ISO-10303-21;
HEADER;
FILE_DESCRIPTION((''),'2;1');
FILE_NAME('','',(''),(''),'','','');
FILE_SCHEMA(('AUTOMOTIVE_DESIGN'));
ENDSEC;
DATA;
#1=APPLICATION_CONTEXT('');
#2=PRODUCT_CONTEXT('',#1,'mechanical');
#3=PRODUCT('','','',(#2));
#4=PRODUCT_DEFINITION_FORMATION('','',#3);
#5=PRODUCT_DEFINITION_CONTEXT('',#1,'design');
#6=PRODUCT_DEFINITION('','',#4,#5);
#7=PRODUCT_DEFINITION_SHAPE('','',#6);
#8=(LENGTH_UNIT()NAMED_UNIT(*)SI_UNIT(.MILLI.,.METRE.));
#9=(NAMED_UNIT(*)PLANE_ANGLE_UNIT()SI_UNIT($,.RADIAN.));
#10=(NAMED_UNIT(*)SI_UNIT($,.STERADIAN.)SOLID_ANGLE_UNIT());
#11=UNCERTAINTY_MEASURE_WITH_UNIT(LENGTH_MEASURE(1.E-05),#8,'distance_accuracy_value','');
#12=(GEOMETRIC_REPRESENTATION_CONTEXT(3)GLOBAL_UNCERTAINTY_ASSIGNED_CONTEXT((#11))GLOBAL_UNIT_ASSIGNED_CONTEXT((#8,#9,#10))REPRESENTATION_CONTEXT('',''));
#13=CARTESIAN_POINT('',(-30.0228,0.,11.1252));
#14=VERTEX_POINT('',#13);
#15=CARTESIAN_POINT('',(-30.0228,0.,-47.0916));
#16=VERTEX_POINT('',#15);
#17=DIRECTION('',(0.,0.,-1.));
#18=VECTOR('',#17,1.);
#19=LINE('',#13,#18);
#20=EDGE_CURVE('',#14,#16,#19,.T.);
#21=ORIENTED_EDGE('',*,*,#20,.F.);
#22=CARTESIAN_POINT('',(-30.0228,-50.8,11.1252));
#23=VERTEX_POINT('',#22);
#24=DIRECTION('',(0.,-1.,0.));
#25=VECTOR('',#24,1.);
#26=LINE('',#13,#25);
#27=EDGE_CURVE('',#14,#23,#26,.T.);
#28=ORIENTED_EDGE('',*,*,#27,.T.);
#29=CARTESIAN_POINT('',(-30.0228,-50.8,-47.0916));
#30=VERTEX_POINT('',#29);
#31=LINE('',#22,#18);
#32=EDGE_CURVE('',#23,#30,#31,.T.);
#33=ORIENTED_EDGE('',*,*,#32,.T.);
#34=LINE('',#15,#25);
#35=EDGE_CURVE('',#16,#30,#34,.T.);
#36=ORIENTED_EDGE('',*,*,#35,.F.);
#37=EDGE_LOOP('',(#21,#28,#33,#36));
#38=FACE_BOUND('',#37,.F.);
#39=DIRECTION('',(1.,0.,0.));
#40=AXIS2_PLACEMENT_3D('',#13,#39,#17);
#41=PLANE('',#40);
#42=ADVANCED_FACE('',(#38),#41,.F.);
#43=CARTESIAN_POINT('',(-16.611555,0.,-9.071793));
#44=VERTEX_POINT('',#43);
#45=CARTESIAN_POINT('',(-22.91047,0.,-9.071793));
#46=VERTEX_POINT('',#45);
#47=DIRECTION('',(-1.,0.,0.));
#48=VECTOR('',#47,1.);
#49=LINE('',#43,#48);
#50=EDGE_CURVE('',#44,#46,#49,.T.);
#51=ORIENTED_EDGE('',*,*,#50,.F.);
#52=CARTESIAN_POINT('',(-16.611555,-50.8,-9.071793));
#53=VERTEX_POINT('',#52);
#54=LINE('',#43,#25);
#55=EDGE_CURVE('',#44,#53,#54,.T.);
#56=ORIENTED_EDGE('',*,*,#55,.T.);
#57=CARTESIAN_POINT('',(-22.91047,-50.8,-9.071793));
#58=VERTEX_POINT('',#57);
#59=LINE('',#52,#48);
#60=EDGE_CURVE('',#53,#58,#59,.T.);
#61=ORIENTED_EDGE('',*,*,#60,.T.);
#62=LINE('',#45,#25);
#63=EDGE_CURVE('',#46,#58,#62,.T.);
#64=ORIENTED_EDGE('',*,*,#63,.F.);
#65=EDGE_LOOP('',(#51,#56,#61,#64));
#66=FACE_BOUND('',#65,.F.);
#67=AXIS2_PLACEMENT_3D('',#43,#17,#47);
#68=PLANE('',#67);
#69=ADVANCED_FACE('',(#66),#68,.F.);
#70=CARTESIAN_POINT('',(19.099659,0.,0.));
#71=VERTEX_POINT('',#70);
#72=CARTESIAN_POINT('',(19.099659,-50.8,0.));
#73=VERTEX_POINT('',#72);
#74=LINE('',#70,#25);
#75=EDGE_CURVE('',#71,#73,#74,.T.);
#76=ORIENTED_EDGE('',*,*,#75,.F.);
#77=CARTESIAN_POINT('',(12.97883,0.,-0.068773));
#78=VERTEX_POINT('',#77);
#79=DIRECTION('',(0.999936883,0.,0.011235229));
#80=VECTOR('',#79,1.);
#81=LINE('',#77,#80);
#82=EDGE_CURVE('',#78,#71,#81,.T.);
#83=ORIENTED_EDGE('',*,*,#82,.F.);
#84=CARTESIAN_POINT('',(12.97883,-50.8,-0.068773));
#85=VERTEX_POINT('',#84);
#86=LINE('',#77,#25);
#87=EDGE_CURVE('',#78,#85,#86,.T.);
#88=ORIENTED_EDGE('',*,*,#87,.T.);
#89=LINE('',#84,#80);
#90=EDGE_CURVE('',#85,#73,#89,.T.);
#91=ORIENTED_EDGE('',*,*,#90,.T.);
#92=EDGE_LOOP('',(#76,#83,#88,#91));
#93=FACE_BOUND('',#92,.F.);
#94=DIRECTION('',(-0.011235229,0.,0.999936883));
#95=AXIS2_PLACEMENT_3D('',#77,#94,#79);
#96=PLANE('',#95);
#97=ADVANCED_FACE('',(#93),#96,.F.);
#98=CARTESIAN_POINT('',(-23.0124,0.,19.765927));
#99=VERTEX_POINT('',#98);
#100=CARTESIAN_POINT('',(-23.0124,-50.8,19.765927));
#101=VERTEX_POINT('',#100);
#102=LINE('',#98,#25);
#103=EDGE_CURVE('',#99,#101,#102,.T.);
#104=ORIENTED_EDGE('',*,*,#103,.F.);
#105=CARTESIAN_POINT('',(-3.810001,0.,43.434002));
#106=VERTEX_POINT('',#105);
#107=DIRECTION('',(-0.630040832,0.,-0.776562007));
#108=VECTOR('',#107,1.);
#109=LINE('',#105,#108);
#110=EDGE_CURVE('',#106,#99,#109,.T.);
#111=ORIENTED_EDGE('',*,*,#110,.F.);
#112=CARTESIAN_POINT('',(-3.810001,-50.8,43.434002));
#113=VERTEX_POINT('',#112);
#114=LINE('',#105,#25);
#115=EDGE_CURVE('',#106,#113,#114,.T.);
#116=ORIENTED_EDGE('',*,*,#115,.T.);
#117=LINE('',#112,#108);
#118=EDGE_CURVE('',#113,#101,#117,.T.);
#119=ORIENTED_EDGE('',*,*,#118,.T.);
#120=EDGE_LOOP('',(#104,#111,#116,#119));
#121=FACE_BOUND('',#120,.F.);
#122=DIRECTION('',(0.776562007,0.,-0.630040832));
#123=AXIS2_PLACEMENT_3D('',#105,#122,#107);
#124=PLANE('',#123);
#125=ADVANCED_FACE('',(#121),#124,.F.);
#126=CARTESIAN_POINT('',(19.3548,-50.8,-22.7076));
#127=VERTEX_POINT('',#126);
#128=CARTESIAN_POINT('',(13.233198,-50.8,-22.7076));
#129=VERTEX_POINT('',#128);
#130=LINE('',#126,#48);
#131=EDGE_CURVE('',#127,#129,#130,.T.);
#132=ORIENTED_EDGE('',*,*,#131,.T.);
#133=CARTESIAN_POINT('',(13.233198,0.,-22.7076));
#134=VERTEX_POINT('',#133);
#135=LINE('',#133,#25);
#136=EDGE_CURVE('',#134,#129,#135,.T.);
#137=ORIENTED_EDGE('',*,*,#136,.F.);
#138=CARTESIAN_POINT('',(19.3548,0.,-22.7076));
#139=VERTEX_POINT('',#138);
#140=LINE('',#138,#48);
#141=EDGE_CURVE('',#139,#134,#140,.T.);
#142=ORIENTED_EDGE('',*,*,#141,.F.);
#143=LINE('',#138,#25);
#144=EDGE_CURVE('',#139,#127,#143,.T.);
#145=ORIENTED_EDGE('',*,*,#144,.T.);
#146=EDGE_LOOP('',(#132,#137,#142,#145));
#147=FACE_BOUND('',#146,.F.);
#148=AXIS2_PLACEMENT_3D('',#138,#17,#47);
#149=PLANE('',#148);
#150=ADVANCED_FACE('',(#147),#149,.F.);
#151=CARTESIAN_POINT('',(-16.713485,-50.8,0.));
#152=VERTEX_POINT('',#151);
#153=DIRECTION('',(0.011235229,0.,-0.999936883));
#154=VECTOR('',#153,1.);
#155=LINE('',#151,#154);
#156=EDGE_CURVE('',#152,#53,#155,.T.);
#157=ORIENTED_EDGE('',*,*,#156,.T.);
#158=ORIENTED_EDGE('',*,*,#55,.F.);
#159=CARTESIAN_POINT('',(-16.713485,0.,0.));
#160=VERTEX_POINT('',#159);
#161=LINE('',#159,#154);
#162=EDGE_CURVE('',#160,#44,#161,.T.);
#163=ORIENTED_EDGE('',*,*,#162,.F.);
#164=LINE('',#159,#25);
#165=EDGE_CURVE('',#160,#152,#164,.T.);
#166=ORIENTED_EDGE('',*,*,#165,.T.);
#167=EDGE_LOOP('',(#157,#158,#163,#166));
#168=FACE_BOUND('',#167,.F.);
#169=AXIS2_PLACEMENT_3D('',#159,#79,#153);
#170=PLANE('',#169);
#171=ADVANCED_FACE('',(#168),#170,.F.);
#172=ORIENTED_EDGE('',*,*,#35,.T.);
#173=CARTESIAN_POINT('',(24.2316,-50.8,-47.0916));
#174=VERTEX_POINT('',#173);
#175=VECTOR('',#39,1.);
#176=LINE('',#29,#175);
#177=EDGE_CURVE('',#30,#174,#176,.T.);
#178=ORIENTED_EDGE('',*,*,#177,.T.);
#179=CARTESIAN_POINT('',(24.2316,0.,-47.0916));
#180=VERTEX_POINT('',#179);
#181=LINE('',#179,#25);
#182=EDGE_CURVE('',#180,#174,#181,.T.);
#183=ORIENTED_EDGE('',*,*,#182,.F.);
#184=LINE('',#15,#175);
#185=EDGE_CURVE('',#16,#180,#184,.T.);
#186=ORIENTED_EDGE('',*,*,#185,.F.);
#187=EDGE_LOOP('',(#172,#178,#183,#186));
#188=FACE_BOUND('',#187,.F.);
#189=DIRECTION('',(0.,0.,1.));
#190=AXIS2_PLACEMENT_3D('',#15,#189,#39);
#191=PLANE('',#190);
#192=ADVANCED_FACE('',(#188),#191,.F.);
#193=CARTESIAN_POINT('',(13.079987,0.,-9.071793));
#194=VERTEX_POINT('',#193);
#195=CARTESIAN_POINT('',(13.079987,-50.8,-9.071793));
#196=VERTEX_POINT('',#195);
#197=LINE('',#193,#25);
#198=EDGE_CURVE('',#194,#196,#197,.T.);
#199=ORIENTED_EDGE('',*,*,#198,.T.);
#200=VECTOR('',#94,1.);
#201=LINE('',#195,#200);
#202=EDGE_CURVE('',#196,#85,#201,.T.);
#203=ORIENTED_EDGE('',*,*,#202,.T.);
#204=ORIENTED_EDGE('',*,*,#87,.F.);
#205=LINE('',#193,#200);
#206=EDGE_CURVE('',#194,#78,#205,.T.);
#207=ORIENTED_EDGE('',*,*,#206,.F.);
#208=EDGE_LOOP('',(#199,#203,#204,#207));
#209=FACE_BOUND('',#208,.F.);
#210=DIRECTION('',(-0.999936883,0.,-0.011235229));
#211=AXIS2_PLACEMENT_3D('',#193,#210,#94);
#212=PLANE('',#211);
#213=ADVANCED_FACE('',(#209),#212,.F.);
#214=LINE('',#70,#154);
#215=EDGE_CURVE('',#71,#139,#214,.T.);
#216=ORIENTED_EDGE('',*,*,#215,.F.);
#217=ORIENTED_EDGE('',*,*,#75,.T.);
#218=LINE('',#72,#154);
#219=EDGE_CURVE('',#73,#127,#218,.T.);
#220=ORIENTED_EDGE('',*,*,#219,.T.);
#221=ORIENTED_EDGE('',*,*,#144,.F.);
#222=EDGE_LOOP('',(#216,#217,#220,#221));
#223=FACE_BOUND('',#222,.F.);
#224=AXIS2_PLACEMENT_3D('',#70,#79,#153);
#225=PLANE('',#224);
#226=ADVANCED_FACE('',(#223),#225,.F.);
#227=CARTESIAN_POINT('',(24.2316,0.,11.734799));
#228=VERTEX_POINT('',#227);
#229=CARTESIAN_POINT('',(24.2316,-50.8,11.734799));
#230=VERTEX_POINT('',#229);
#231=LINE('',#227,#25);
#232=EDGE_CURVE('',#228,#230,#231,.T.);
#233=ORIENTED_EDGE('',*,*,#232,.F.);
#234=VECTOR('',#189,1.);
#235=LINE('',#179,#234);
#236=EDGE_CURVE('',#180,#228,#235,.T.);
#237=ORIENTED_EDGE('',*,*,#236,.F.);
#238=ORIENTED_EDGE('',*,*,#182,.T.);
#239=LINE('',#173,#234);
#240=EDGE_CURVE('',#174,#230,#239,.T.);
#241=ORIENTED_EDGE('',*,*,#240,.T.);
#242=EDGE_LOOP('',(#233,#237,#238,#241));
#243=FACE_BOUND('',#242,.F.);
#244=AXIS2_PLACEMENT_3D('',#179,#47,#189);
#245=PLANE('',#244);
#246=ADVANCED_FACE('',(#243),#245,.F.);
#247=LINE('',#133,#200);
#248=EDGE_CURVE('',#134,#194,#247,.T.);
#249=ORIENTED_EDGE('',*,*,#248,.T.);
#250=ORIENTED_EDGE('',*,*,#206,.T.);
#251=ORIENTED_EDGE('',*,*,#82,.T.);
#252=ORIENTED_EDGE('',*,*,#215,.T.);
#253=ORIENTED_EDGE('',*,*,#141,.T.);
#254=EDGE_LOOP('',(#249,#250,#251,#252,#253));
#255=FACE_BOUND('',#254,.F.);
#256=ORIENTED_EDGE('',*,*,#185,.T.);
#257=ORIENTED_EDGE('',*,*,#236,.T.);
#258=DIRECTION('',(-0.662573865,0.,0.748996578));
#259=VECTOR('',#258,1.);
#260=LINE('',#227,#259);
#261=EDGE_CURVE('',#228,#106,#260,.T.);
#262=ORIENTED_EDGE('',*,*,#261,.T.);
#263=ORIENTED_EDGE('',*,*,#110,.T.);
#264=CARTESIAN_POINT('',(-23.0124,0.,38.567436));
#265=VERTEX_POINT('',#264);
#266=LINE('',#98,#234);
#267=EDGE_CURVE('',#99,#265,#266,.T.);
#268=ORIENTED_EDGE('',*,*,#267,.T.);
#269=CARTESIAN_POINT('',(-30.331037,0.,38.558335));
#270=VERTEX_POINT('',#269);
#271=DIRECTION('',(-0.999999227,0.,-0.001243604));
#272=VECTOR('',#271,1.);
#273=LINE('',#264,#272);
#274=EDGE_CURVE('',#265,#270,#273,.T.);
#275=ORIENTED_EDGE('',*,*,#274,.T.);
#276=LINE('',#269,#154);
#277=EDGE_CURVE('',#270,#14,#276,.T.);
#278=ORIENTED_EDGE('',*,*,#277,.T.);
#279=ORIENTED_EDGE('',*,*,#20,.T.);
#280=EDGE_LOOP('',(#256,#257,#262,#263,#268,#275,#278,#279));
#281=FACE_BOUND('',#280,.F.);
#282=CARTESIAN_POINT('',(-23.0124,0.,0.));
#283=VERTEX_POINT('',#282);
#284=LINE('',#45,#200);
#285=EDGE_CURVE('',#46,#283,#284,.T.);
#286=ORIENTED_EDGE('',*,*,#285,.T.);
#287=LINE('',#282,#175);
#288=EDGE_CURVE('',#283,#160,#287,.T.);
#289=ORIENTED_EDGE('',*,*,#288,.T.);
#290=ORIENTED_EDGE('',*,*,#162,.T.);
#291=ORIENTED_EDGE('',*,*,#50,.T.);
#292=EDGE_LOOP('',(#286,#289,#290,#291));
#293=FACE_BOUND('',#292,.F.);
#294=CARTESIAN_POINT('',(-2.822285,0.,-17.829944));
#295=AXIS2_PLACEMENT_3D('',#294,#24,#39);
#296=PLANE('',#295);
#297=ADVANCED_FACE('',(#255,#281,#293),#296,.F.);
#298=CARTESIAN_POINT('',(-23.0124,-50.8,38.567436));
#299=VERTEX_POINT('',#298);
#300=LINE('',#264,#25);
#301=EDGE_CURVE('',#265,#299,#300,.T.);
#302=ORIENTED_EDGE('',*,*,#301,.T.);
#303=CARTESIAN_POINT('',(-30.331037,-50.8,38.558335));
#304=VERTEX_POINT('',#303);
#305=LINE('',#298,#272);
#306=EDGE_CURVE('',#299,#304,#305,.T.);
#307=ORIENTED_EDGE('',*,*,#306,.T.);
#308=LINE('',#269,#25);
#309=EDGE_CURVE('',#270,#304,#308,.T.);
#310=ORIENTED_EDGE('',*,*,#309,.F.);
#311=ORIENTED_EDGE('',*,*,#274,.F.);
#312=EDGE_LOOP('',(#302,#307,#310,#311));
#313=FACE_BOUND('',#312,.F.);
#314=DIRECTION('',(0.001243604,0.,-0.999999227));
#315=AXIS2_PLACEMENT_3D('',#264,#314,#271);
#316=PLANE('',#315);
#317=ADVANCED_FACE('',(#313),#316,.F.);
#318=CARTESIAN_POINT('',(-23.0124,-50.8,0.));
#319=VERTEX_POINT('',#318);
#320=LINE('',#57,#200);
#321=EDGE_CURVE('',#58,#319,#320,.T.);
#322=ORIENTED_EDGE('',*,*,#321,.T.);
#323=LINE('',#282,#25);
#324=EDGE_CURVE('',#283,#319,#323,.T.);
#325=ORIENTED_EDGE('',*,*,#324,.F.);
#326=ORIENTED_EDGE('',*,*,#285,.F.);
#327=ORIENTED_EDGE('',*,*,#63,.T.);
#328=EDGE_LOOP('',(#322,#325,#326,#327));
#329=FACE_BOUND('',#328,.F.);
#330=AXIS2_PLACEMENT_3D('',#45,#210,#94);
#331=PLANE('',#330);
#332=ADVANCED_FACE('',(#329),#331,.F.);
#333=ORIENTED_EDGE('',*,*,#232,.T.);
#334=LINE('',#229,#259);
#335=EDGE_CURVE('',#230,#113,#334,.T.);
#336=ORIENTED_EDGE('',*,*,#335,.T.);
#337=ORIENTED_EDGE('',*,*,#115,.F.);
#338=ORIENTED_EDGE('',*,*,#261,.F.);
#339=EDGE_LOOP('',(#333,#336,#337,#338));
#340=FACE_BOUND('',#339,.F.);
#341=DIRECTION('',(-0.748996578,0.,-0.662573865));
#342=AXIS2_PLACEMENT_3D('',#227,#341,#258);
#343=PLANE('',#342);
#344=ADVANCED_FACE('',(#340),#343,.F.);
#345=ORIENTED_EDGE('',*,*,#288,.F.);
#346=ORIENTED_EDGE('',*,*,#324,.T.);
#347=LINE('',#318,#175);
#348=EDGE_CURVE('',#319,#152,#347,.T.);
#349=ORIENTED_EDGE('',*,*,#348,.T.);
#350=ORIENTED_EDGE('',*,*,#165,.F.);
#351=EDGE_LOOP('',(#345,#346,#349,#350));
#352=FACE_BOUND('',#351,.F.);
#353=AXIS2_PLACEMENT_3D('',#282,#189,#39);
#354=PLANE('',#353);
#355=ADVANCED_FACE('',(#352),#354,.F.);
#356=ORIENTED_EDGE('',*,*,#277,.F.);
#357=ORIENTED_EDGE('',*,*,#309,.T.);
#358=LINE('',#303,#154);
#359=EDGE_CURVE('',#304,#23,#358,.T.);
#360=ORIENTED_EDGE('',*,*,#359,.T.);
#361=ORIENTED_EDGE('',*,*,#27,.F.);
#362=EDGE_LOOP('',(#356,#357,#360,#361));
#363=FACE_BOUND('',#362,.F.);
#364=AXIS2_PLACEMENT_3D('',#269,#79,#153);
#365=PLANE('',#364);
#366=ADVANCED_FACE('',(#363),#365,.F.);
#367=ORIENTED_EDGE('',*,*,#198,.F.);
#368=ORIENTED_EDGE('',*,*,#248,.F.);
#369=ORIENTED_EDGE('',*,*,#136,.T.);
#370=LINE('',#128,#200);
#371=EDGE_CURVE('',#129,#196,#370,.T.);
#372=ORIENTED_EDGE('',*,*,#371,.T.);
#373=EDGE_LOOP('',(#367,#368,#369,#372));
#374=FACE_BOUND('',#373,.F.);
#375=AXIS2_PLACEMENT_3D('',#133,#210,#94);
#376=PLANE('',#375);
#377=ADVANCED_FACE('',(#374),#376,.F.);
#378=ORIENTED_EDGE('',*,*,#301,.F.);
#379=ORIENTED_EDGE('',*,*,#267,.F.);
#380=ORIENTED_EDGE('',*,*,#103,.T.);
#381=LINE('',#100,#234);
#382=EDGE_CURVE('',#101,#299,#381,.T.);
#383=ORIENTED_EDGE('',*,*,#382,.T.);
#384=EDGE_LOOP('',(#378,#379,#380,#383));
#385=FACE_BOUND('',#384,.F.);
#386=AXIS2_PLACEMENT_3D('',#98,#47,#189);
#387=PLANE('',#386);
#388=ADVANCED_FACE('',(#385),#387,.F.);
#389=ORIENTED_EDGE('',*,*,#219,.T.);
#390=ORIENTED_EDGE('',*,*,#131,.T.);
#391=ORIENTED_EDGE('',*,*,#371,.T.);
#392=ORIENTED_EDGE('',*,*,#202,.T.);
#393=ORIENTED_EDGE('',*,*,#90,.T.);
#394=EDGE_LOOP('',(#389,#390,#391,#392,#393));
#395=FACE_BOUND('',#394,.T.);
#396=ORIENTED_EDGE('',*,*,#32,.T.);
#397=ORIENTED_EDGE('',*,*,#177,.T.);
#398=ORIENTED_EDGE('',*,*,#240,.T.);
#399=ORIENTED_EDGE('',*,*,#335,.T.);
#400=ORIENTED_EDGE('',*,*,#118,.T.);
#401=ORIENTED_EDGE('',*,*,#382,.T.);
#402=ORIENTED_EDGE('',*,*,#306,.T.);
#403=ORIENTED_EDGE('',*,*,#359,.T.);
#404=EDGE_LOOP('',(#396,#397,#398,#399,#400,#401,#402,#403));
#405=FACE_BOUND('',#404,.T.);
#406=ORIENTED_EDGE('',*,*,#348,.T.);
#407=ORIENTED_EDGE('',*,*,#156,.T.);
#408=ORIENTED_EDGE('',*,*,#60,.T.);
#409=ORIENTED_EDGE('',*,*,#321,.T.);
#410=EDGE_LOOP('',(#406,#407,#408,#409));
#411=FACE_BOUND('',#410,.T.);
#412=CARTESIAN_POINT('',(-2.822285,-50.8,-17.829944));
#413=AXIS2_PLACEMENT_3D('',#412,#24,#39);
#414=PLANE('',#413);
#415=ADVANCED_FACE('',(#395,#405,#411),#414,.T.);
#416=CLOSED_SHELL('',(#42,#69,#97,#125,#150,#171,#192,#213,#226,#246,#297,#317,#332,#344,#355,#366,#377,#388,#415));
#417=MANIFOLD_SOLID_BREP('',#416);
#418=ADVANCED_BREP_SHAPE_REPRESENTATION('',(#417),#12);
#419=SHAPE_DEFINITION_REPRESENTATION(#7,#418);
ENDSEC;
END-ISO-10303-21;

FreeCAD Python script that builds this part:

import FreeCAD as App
import Part
import Sketcher
from FreeCAD import Vector
Q = App.Units.Quantity

doc = App.newDocument("Part")
params = doc.addObject("Spreadsheet::Sheet", "Params")
for row, (alias, value) in enumerate([
    ("sketch1_width", "2.136 in"),
    ("sketch1_height", "2.316 in"),
    ("sketch1_height2", "2.292 in"),
    ("pad1_length", "2 in"),
], start=1):
    params.set(f"A{row}", alias)
    params.set(f"B{row}", "=" + value)
    params.setAlias(f"B{row}", alias)

body = doc.addObject("PartDesign::Body", "Body")

# Sketch on XZ plane
sketch1 = body.newObject("Sketcher::SketchObject", "Sketch")
sketch1.AttachmentSupport = (doc.getObject("XZ_Plane"), [""])
sketch1.MapMode = "FlatFace"
sketch1.addGeometry(Part.LineSegment(Vector(24.2316, -47.0916, 0), Vector(24.2316, 11.734799, 0)), False)
sketch1.addGeometry(Part.LineSegment(Vector(24.2316, 11.734799, 0), Vector(-3.810001, 43.434002, 0)), False)
sketch1.addGeometry(Part.LineSegment(Vector(-3.810001, 43.434002, 0), Vector(-23.0124, 19.765927, 0)), False)
sketch1.addGeometry(Part.LineSegment(Vector(-23.0124, 19.765927, 0), Vector(-23.0124, 38.567436, 0)), False)
sketch1.addGeometry(Part.LineSegment(Vector(-23.0124, 38.567436, 0), Vector(-30.331037, 38.558335, 0)), False)
sketch1.addGeometry(Part.LineSegment(Vector(-30.331037, 38.558335, 0), Vector(-30.0228, 11.1252, 0)), False)
sketch1.addGeometry(Part.LineSegment(Vector(-30.0228, 11.1252, 0), Vector(-30.0228, -47.0916, 0)), False)
sketch1.addGeometry(Part.LineSegment(Vector(-30.0228, -47.0916, 0), Vector(24.2316, -47.0916, 0)), False)
sketch1.addGeometry(Part.LineSegment(Vector(19.099659, 0, 0), Vector(19.3548, -22.7076, 0)), False)
sketch1.addGeometry(Part.LineSegment(Vector(19.3548, -22.7076, 0), Vector(13.233198, -22.7076, 0)), False)
sketch1.addGeometry(Part.LineSegment(Vector(13.233198, -22.7076, 0), Vector(13.079987, -9.071793, 0)), False)
sketch1.addGeometry(Part.LineSegment(Vector(13.079987, -9.071793, 0), Vector(12.97883, -0.068773, 0)), False)
sketch1.addGeometry(Part.LineSegment(Vector(12.97883, -0.068773, 0), Vector(19.099659, 0, 0)), False)
sketch1.addGeometry(Part.LineSegment(Vector(-16.611555, -9.071793, 0), Vector(-22.91047, -9.071793, 0)), False)
sketch1.addGeometry(Part.LineSegment(Vector(-22.91047, -9.071793, 0), Vector(-23.0124, 0, 0)), False)
sketch1.addGeometry(Part.LineSegment(Vector(-23.0124, 0, 0), Vector(-16.713485, 0, 0)), False)
sketch1.addGeometry(Part.LineSegment(Vector(-16.713485, 0, 0), Vector(-16.611555, -9.071793, 0)), False)
sketch1.addConstraint(Sketcher.Constraint("Coincident", 0, 2, 1, 1))
sketch1.addConstraint(Sketcher.Constraint("Coincident", 1, 2, 2, 1))
sketch1.addConstraint(Sketcher.Constraint("Coincident", 2, 2, 3, 1))
sketch1.addConstraint(Sketcher.Constraint("Coincident", 3, 2, 4, 1))
sketch1.addConstraint(Sketcher.Constraint("Coincident", 4, 2, 5, 1))
sketch1.addConstraint(Sketcher.Constraint("Coincident", 5, 2, 6, 1))
sketch1.addConstraint(Sketcher.Constraint("Coincident", 6, 2, 7, 1))
sketch1.addConstraint(Sketcher.Constraint("Coincident", 7, 2, 0, 1))
sketch1.addConstraint(Sketcher.Constraint("Coincident", 8, 2, 9, 1))
sketch1.addConstraint(Sketcher.Constraint("Coincident", 9, 2, 10, 1))
sketch1.addConstraint(Sketcher.Constraint("Coincident", 10, 2, 11, 1))
sketch1.addConstraint(Sketcher.Constraint("Coincident", 11, 2, 12, 1))
sketch1.addConstraint(Sketcher.Constraint("Coincident", 12, 2, 8, 1))
sketch1.addConstraint(Sketcher.Constraint("Coincident", 13, 2, 14, 1))
sketch1.addConstraint(Sketcher.Constraint("Coincident", 14, 2, 15, 1))
sketch1.addConstraint(Sketcher.Constraint("Coincident", 15, 2, 16, 1))
sketch1.addConstraint(Sketcher.Constraint("Coincident", 16, 2, 13, 1))
sketch1.addConstraint(Sketcher.Constraint("Vertical", 0))
sketch1.addConstraint(Sketcher.Constraint("Vertical", 3))
sketch1.addConstraint(Sketcher.Constraint("Vertical", 6))
sketch1.addConstraint(Sketcher.Constraint("Horizontal", 7))
sketch1.addConstraint(Sketcher.Constraint("Horizontal", 9))
sketch1.addConstraint(Sketcher.Constraint("Horizontal", 13))
sketch1.addConstraint(Sketcher.Constraint("Horizontal", 15))
sketch1.addConstraint(Sketcher.Constraint("PointOnObject", 12, 2, -1))
sketch1.addConstraint(Sketcher.Constraint("PointOnObject", 14, 2, -1))
sketch1.addConstraint(Sketcher.Constraint("Parallel", 5, 8))
sketch1.addConstraint(Sketcher.Constraint("Parallel", 8, 10))
sketch1.addConstraint(Sketcher.Constraint("Parallel", 10, 11))
sketch1.addConstraint(Sketcher.Constraint("Perpendicular", 11, 12))
sketch1.addConstraint(Sketcher.Constraint("Perpendicular", 12, 14))
sketch1.addConstraint(Sketcher.Constraint("Parallel", 14, 16))
sketch1.addConstraint(Sketcher.Constraint("Horizontal", 10, 2, 13, 2))
sketch1.addConstraint(Sketcher.Constraint("Vertical", 3, 2, 14, 2))
sketch1.addConstraint(Sketcher.Constraint("DistanceX", 7, 1, 7, 2, Q("2.136 in")))
sketch1.addConstraint(Sketcher.Constraint("DistanceY", 0, 1, 0, 2, Q("2.316 in")))
sketch1.addConstraint(Sketcher.Constraint("DistanceY", 6, 2, 6, 1, Q("2.292 in")))
sketch1.addConstraint(Sketcher.Constraint("DistanceX", 1, 2, -1, 1, Q("0.15 in")))
sketch1.addConstraint(Sketcher.Constraint("DistanceY", -1, 1, 1, 2, Q("1.7100001 in")))
sketch1.addConstraint(Sketcher.Constraint("DistanceX", 2, 2, 0, 2, Q("1.86 in")))
sketch1.addConstraint(Sketcher.Constraint("DistanceY", 7, 2, 8, 2, Q("0.96 in")))
sketch1.addConstraint(Sketcher.Constraint("DistanceX", -1, 1, 0, 2, Q("0.954 in")))
sketch1.addConstraint(Sketcher.Constraint("DistanceY", -1, 1, 0, 2, Q("0.462 in")))
sketch1.addConstraint(Sketcher.Constraint("DistanceX", -1, 1, 8, 2, Q("0.762 in")))
sketch1.addConstraint(Sketcher.Constraint("DistanceX", 9, 2, 9, 1, Q("6.121602 mm")))
sketch1.addConstraint(Sketcher.Constraint("DistanceY", 3, 1, 3, 2, Q("18.801509 mm")))
sketch1.addConstraint(Sketcher.Constraint("DistanceY", 4, 2, 3, 2, Q("0.009101 mm")))
sketch1.addConstraint(Sketcher.Constraint("DistanceY", 11, 2, 2, 2, Q("19.8347 mm")))
sketch1.addConstraint(Sketcher.Constraint("DistanceX", 13, 2, 11, 2, Q("35.889299 mm")))
sketch1.addConstraint(Sketcher.Constraint("Distance", 10, Q("13.636668 mm")))
sketch1.addConstraint(Sketcher.Constraint("DistanceX", 13, 2, 13, 1, Q("6.298915 mm")))
sketch1.setExpression("Constraints[34]", "Params.sketch1_width")
sketch1.setExpression("Constraints[35]", "Params.sketch1_height")
sketch1.setExpression("Constraints[36]", "Params.sketch1_height2")
pad1 = body.newObject("PartDesign::Pad", "Pad")
pad1.Profile = sketch1
pad1.setExpression("Length", "Params.pad1_length")

doc.recompute()
